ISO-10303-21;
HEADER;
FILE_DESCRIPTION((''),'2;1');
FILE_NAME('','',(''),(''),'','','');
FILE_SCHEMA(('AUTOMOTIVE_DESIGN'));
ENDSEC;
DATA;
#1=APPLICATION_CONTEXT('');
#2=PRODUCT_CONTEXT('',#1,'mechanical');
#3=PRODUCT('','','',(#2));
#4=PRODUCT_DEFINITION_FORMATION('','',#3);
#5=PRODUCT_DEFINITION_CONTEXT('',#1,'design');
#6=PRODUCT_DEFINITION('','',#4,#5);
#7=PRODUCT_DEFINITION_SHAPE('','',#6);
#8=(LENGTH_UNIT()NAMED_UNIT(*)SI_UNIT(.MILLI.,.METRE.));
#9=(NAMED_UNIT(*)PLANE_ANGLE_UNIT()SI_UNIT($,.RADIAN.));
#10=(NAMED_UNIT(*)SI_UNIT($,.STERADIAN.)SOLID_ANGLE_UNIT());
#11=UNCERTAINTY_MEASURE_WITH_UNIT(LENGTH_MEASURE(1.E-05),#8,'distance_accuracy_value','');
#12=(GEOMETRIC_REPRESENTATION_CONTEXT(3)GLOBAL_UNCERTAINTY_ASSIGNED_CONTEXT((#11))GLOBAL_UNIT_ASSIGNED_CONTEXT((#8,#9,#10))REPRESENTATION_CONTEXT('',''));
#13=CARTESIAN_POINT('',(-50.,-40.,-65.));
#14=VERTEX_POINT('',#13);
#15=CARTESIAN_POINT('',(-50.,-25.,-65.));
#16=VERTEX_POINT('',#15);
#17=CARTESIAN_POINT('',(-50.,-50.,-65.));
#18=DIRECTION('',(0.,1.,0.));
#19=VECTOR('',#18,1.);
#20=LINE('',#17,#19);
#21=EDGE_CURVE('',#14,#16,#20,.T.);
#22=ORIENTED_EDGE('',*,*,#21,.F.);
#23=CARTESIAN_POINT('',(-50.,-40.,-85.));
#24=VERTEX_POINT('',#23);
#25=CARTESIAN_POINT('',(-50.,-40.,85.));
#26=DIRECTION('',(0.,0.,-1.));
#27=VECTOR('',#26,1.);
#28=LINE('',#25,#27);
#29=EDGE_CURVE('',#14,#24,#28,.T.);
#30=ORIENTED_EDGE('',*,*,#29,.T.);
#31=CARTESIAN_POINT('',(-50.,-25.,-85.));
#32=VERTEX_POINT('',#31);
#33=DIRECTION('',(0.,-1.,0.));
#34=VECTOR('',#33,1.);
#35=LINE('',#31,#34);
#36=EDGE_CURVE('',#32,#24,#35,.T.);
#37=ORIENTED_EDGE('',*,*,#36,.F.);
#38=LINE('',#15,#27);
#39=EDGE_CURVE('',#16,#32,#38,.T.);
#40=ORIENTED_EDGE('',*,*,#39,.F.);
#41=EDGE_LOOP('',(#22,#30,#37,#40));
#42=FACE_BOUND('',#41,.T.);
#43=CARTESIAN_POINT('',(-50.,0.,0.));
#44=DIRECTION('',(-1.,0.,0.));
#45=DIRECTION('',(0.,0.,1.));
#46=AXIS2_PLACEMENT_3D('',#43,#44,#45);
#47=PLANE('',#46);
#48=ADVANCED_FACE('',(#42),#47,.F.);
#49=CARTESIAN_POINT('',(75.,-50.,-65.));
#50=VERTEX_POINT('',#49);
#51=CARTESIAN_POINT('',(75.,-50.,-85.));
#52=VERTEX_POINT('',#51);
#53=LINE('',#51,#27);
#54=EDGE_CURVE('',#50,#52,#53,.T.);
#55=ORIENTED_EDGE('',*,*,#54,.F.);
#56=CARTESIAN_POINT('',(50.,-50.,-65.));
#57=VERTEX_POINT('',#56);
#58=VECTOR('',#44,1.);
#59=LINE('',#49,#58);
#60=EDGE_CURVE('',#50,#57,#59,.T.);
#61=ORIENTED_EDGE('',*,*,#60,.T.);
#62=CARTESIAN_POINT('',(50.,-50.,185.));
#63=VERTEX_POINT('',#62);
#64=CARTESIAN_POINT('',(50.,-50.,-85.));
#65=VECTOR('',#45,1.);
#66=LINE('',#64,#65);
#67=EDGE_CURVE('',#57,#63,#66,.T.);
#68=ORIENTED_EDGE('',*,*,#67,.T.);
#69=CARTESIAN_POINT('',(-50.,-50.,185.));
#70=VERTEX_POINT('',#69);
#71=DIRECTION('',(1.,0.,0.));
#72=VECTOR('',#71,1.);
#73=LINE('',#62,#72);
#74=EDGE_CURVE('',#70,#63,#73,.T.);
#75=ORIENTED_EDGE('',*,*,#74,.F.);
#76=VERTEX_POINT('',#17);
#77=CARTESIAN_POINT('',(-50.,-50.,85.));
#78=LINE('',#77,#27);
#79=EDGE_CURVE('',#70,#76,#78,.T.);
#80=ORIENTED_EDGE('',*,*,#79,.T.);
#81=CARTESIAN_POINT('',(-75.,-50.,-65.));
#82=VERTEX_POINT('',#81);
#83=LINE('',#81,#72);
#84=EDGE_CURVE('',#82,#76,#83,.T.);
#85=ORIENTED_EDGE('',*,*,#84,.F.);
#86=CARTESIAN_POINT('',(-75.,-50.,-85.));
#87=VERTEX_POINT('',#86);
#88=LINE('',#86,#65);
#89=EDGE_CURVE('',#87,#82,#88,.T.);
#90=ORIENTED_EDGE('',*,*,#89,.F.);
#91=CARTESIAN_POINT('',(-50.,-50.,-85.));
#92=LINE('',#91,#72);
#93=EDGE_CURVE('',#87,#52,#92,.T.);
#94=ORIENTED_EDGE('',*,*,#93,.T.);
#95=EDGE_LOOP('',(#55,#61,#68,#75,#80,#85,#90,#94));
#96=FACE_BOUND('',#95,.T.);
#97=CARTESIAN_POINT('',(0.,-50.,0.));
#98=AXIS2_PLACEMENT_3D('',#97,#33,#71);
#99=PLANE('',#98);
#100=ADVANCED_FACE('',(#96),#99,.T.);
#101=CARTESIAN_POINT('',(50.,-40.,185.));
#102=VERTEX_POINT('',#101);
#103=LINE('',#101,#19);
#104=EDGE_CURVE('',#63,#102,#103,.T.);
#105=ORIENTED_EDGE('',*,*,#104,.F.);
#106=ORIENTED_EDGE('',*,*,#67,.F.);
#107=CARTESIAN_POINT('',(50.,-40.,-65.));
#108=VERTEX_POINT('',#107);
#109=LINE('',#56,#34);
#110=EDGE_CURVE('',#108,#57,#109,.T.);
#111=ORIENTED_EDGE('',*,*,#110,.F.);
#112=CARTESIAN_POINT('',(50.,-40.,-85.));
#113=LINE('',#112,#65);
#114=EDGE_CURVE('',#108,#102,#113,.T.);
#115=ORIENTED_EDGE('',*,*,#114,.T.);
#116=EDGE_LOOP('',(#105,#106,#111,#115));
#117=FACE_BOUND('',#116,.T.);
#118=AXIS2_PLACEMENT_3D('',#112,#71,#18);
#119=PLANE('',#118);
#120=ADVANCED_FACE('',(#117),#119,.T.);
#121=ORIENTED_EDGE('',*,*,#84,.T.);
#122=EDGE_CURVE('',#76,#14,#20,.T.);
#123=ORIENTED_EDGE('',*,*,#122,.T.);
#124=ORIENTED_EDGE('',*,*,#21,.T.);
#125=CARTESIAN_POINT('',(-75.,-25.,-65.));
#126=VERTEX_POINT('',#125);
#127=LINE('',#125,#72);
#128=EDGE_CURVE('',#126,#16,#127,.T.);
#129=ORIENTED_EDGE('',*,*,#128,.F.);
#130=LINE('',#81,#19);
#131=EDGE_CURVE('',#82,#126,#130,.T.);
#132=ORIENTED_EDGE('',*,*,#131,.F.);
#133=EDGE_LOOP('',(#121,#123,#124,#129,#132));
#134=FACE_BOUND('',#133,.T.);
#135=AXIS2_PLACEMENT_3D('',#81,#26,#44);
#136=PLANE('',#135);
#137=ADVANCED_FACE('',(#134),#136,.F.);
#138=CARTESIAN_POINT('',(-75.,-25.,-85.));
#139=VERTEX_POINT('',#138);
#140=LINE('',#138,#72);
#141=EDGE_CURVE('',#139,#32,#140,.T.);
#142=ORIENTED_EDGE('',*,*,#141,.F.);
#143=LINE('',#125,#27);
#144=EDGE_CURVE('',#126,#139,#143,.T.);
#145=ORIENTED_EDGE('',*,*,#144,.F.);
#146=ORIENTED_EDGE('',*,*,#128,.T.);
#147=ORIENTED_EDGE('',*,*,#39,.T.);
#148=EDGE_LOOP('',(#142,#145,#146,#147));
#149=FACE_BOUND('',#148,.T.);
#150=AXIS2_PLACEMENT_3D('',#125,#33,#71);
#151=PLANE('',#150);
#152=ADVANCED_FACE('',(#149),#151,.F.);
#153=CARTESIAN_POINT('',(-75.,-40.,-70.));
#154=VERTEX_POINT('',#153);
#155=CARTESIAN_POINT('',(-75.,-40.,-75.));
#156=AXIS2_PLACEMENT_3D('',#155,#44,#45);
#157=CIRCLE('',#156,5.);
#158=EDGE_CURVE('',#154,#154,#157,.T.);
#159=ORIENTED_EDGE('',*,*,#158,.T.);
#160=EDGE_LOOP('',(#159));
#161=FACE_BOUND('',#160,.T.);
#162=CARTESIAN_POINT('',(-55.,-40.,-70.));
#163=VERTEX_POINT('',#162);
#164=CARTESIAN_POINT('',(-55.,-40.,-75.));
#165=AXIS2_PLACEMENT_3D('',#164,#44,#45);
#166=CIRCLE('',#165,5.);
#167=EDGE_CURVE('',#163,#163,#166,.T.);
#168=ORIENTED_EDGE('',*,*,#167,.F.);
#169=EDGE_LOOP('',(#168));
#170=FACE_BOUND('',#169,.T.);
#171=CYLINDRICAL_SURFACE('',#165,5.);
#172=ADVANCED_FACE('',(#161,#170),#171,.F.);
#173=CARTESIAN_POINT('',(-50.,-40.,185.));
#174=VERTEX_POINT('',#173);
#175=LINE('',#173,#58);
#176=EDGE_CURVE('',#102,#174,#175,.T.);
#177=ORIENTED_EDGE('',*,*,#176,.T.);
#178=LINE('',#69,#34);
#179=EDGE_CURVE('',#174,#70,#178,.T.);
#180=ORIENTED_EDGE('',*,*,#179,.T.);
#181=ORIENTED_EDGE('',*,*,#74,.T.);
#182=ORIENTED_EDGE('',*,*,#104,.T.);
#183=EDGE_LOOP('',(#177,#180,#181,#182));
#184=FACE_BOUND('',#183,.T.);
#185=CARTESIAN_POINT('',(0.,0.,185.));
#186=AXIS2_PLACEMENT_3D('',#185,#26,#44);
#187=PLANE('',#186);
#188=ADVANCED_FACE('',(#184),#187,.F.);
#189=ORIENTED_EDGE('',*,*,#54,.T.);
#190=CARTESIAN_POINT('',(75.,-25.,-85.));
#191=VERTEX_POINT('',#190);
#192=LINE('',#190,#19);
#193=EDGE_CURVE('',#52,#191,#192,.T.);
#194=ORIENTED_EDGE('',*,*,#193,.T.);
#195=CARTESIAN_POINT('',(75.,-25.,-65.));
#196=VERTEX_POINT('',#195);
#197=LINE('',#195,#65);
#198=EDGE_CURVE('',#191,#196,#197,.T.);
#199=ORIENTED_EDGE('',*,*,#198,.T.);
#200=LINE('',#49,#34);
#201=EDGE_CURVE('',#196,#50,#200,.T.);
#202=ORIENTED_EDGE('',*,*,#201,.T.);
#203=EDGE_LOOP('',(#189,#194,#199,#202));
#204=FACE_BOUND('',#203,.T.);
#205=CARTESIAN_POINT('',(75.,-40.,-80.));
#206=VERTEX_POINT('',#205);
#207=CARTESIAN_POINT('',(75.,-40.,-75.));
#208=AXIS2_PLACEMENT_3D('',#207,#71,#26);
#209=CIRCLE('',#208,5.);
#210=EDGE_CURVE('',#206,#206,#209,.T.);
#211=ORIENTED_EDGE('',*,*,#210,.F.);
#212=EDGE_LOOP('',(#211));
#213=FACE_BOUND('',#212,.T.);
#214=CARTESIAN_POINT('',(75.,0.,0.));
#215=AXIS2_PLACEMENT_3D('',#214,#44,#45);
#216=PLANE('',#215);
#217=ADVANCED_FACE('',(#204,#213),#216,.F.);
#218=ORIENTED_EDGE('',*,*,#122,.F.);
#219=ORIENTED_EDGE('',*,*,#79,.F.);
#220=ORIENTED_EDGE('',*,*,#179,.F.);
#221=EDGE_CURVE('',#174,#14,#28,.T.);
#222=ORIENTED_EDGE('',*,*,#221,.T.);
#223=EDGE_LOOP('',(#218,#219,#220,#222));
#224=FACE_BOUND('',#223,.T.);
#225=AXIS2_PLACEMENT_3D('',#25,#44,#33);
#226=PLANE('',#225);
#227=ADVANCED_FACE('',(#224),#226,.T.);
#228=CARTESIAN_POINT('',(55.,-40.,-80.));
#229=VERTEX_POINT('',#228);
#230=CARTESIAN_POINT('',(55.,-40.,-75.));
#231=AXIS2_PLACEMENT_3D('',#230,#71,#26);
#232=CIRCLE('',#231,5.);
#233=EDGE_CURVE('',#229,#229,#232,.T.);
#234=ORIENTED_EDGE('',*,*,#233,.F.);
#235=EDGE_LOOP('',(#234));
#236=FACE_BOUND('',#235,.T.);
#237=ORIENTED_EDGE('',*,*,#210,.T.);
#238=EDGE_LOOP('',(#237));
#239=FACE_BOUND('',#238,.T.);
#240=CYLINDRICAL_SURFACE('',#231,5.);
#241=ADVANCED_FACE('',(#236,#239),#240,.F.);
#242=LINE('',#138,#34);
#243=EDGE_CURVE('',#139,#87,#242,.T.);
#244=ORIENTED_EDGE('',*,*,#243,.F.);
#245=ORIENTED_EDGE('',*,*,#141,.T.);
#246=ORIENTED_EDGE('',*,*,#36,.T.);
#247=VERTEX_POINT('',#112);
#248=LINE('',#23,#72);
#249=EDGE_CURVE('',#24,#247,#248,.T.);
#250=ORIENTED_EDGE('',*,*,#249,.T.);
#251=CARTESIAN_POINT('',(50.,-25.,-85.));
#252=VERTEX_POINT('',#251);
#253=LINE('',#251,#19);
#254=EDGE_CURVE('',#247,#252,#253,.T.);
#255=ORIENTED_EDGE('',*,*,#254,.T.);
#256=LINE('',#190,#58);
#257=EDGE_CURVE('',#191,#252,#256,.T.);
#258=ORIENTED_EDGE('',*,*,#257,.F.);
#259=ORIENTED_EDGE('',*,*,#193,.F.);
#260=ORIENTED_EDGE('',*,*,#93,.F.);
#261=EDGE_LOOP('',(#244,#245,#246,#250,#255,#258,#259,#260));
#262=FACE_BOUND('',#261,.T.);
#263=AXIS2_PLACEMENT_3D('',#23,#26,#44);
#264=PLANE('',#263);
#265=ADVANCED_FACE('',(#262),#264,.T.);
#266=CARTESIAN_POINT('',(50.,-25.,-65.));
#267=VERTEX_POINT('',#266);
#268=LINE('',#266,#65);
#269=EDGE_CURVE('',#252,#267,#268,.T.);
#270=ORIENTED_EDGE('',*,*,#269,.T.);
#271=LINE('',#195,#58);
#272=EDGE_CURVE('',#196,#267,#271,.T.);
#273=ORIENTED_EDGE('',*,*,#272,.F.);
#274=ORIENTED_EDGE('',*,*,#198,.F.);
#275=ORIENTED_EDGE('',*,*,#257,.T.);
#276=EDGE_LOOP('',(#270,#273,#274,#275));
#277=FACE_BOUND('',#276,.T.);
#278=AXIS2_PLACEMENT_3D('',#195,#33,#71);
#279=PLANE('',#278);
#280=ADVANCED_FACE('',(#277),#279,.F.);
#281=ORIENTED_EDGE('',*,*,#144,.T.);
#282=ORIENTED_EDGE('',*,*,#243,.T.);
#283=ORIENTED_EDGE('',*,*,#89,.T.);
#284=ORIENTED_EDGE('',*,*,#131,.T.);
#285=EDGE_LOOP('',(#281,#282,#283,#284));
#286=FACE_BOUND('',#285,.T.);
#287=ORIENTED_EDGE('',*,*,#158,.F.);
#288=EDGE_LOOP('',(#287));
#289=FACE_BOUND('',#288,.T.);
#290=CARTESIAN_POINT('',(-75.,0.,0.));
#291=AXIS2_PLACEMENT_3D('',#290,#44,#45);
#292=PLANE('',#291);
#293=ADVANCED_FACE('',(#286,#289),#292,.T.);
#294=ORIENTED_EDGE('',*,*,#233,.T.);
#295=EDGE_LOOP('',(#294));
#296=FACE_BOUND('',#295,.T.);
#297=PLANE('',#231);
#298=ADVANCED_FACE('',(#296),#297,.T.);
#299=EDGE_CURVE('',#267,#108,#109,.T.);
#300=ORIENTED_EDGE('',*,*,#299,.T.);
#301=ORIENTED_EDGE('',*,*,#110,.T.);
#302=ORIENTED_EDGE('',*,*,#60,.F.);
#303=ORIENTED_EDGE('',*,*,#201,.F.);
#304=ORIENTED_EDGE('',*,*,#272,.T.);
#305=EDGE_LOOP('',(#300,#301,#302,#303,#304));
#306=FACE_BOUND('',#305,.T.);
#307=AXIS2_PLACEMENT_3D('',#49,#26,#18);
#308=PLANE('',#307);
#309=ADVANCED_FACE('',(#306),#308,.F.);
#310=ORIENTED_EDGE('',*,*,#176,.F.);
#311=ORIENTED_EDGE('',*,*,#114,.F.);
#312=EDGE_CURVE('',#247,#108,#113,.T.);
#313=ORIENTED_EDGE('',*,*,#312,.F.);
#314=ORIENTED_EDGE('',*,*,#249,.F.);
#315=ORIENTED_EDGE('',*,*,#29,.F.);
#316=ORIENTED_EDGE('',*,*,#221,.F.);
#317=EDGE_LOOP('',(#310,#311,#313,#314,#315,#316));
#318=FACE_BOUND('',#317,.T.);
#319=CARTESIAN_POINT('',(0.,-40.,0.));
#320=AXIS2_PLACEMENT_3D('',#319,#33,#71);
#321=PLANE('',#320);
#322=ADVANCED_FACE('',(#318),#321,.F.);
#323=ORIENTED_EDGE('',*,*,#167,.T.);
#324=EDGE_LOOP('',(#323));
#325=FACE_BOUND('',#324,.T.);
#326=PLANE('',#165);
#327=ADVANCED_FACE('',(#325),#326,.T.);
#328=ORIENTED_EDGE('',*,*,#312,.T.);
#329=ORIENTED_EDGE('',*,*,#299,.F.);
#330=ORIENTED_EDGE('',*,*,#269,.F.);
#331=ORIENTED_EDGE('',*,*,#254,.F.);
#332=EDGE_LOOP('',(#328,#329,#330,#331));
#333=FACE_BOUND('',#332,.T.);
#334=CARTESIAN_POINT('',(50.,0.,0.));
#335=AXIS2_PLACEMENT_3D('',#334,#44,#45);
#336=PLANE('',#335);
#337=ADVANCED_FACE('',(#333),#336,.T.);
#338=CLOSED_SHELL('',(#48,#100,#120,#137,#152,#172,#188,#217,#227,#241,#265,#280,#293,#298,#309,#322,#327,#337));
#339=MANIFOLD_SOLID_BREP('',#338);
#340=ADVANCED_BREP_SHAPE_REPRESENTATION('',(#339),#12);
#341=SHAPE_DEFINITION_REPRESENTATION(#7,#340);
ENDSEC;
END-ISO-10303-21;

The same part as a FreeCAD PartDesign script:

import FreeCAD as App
import Part
import Sketcher

V = App.Vector

doc = App.newDocument("Part")
body = doc.addObject("PartDesign::Body", "Body")

sketch1 = body.newObject("Sketcher::SketchObject", "Sketch")
sketch1.AttachmentSupport = (doc.getObject("XZ_Plane"), [""])
sketch1.MapMode = "FlatFace"
sketch1.AttachmentOffset = App.Placement(V(0, 0, 50), App.Rotation())
sketch1.addGeometry(Part.LineSegment(V(50, -85, 0), V(50, 85, 0)), False)
sketch1.addGeometry(Part.LineSegment(V(50, 85, 0), V(-50, 85, 0)), False)
sketch1.addGeometry(Part.LineSegment(V(-50, 85, 0), V(-50, -85, 0)), False)
sketch1.addGeometry(Part.LineSegment(V(-50, -85, 0), V(50, -85, 0)), False)
sketch1.addConstraint(Sketcher.Constraint("Coincident", 0, 2, 1, 1))
sketch1.addConstraint(Sketcher.Constraint("Coincident", 1, 2, 2, 1))
sketch1.addConstraint(Sketcher.Constraint("Coincident", 2, 2, 3, 1))
sketch1.addConstraint(Sketcher.Constraint("Coincident", 3, 2, 0, 1))
sketch1.addConstraint(Sketcher.Constraint("Vertical", 0))
sketch1.addConstraint(Sketcher.Constraint("Horizontal", 1))
sketch1.addConstraint(Sketcher.Constraint("Vertical", 2))
sketch1.addConstraint(Sketcher.Constraint("Horizontal", 3))
sketch1.addConstraint(Sketcher.Constraint("Symmetric", 0, 2, 2, 2, -1, 1))
sketch1.addConstraint(Sketcher.Constraint("DistanceX", 1, 2, 1, 1, 100.0))
sketch1.addConstraint(Sketcher.Constraint("DistanceY", 0, 1, 0, 2, 170.0))
pad1 = body.newObject("PartDesign::Pad", "Pad")
pad1.Profile = sketch1
pad1.Length = 10
pad1.Reversed = True

sketch2 = body.newObject("Sketcher::SketchObject", "Sketch001")
sketch2.AttachmentSupport = (doc.getObject("YZ_Plane"), [""])
sketch2.MapMode = "FlatFace"
sketch2.AttachmentOffset = App.Placement(V(0, 0, -50), App.Rotation())
sketch2.addGeometry(Part.LineSegment(V(-25, -85, 0), V(-50, -85, 0)), False)
sketch2.addGeometry(Part.LineSegment(V(-50, -85, 0), V(-50, -65, 0)), False)
sketch2.addGeometry(Part.LineSegment(V(-50, -65, 0), V(-25, -65, 0)), False)
sketch2.addGeometry(Part.LineSegment(V(-25, -65, 0), V(-25, -85, 0)), False)
sketch2.addConstraint(Sketcher.Constraint("Coincident", 0, 2, 1, 1))
sketch2.addConstraint(Sketcher.Constraint("Coincident", 1, 2, 2, 1))
sketch2.addConstraint(Sketcher.Constraint("Coincident", 2, 2, 3, 1))
sketch2.addConstraint(Sketcher.Constraint("Coincident", 3, 2, 0, 1))
sketch2.addConstraint(Sketcher.Constraint("Horizontal", 0))
sketch2.addConstraint(Sketcher.Constraint("Vertical", 1))
sketch2.addConstraint(Sketcher.Constraint("Horizontal", 2))
sketch2.addConstraint(Sketcher.Constraint("Vertical", 3))
sketch2.addConstraint(Sketcher.Constraint("DistanceX", 0, 2, 0, 1, 25.0))
sketch2.addConstraint(Sketcher.Constraint("DistanceY", 1, 1, 1, 2, 20.0))
sketch2.addConstraint(Sketcher.Constraint("DistanceX", 0, 2, -1, 1, 50.0))
sketch2.addConstraint(Sketcher.Constraint("DistanceY", 0, 2, -1, 1, 85.0))
pad2 = body.newObject("PartDesign::Pad", "Pad001")
pad2.Profile = sketch2
pad2.Length = 25
pad2.Reversed = True

sketch3 = body.newObject("Sketcher::SketchObject", "Sketch002")
sketch3.AttachmentSupport = (doc.getObject("YZ_Plane"), [""])
sketch3.MapMode = "FlatFace"
sketch3.AttachmentOffset = App.Placement(V(0, 0, 50), App.Rotation())
sketch3.addGeometry(Part.LineSegment(V(-25, -65, 0), V(-50, -65, 0)), False)
sketch3.addGeometry(Part.LineSegment(V(-50, -65, 0), V(-50, -85, 0)), False)
sketch3.addGeometry(Part.LineSegment(V(-50, -85, 0), V(-25, -85, 0)), False)
sketch3.addGeometry(Part.LineSegment(V(-25, -85, 0), V(-25, -65, 0)), False)
sketch3.addConstraint(Sketcher.Constraint("Coincident", 0, 2, 1, 1))
sketch3.addConstraint(Sketcher.Constraint("Coincident", 1, 2, 2, 1))
sketch3.addConstraint(Sketcher.Constraint("Coincident", 2, 2, 3, 1))
sketch3.addConstraint(Sketcher.Constraint("Coincident", 3, 2, 0, 1))
sketch3.addConstraint(Sketcher.Constraint("Horizontal", 0))
sketch3.addConstraint(Sketcher.Constraint("Vertical", 1))
sketch3.addConstraint(Sketcher.Constraint("Horizontal", 2))
sketch3.addConstraint(Sketcher.Constraint("Vertical", 3))
sketch3.addConstraint(Sketcher.Constraint("DistanceX", 0, 2, 0, 1, 25.0))
sketch3.addConstraint(Sketcher.Constraint("DistanceY", 1, 2, 1, 1, 20.0))
sketch3.addConstraint(Sketcher.Constraint("DistanceX", 0, 2, -1, 1, 50.0))
sketch3.addConstraint(Sketcher.Constraint("DistanceY", 0, 2, -1, 1, 65.0))
pad3 = body.newObject("PartDesign::Pad", "Pad002")
pad3.Profile = sketch3
pad3.Length = 25

sketch4 = body.newObject("Sketcher::SketchObject", "Sketch003")
sketch4.AttachmentSupport = (doc.getObject("YZ_Plane"), [""])
sketch4.MapMode = "FlatFace"
sketch4.AttachmentOffset = App.Placement(V(0, 0, -75), App.Rotation())
sketch4.addGeometry(Part.Circle(V(-40, -75, 0), V(0, 0, 1), 5), False)
sketch4.addConstraint(Sketcher.Constraint("Diameter", 0, 10.0))
sketch4.addConstraint(Sketcher.Constraint("DistanceX", 0, 3, -1, 1, 40.0))
sketch4.addConstraint(Sketcher.Constraint("DistanceY", 0, 3, -1, 1, 75.0))
pocket1 = body.newObject("PartDesign::Pocket", "Pocket")
pocket1.Profile = sketch4
pocket1.Length = 20
pocket1.Reversed = True

sketch5 = body.newObject("Sketcher::SketchObject", "Sketch004")
sketch5.AttachmentSupport = (doc.getObject("YZ_Plane"), [""])
sketch5.MapMode = "FlatFace"
sketch5.AttachmentOffset = App.Placement(V(0, 0, 55), App.Rotation())
sketch5.addGeometry(Part.Circle(V(-40, -75, 0), V(0, 0, 1), 5), False)
sketch5.addConstraint(Sketcher.Constraint("Diameter", 0, 10.0))
sketch5.addConstraint(Sketcher.Constraint("DistanceX", 0, 3, -1, 1, 40.0))
sketch5.addConstraint(Sketcher.Constraint("DistanceY", 0, 3, -1, 1, 75.0))
pocket2 = body.newObject("PartDesign::Pocket", "Pocket001")
pocket2.Profile = sketch5
pocket2.Length = 20
pocket2.Reversed = True

sketch6 = body.newObject("Sketcher::SketchObject", "Sketch005")
sketch6.AttachmentSupport = (doc.getObject("XY_Plane"), [""])
sketch6.MapMode = "FlatFace"
sketch6.AttachmentOffset = App.Placement(V(0, 0, 85), App.Rotation())
sketch6.addGeometry(Part.LineSegment(V(-50, -40, 0), V(-50, -50, 0)), False)
sketch6.addGeometry(Part.LineSegment(V(-50, -50, 0), V(50, -50, 0)), False)
sketch6.addGeometry(Part.LineSegment(V(50, -50, 0), V(50, -40, 0)), False)
sketch6.addGeometry(Part.LineSegment(V(50, -40, 0), V(-50, -40, 0)), False)
sketch6.addConstraint(Sketcher.Constraint("Coincident", 0, 2, 1, 1))
sketch6.addConstraint(Sketcher.Constraint("Coincident", 1, 2, 2, 1))
sketch6.addConstraint(Sketcher.Constraint("Coincident", 2, 2, 3, 1))
sketch6.addConstraint(Sketcher.Constraint("Coincident", 3, 2, 0, 1))
sketch6.addConstraint(Sketcher.Constraint("Vertical", 0))
sketch6.addConstraint(Sketcher.Constraint("Horizontal", 1))
sketch6.addConstraint(Sketcher.Constraint("Vertical", 2))
sketch6.addConstraint(Sketcher.Constraint("Horizontal", 3))
sketch6.addConstraint(Sketcher.Constraint("DistanceX", 1, 1, 1, 2, 100.0))
sketch6.addConstraint(Sketcher.Constraint("DistanceY", 0, 2, 0, 1, 10.0))
sketch6.addConstraint(Sketcher.Constraint("DistanceX", 0, 2, -1, 1, 50.0))
sketch6.addConstraint(Sketcher.Constraint("DistanceY", 0, 2, -1, 1, 50.0))
pad4 = body.newObject("PartDesign::Pad", "Pad003")
pad4.Profile = sketch6
pad4.Length = 100

doc.recompute()
